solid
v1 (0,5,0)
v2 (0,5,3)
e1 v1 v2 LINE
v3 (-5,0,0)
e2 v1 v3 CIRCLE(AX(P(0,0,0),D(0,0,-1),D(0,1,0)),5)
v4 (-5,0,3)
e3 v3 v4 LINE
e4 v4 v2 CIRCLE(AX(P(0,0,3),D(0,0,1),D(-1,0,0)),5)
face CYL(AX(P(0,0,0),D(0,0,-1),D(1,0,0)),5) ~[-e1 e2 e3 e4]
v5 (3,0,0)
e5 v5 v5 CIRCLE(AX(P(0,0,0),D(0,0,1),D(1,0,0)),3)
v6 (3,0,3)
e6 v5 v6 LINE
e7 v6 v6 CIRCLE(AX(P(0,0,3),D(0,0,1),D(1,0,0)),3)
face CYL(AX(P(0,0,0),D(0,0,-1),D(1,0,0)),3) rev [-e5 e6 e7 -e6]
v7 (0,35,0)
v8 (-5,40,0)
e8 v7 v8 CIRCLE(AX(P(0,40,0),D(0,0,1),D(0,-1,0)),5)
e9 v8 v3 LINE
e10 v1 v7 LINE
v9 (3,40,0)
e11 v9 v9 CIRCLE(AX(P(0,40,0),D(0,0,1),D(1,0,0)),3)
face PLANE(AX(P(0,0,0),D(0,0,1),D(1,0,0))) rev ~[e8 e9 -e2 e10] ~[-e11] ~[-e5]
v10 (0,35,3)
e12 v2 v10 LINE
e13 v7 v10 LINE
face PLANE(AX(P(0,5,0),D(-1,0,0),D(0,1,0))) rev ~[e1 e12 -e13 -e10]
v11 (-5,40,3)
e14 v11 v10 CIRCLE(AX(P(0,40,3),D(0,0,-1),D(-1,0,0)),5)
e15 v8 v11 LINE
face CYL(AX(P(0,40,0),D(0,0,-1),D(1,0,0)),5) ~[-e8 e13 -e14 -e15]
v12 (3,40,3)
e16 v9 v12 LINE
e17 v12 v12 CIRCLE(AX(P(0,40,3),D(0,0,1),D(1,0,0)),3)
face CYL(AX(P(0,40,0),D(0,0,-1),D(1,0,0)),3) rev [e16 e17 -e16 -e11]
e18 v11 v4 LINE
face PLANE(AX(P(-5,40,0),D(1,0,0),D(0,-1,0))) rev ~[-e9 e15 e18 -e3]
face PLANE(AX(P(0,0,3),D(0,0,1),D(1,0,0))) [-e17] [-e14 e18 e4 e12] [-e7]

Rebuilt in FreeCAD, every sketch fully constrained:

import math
import FreeCAD as App
import Part
import Sketcher

doc = App.newDocument("Part")
body = doc.addObject("PartDesign::Body", "Body")

sketch1 = body.newObject("Sketcher::SketchObject", "Sketch")
sketch1.AttachmentSupport = (doc.getObject("XY_Plane"), [""])
sketch1.MapMode = "FlatFace"
sketch1.addGeometry(Part.ArcOfCircle(Part.Circle(App.Vector(0, 40, 0), App.Vector(0, 0, 1), 5), math.radians(-90), math.radians(180)), False)
sketch1.addGeometry(Part.LineSegment(App.Vector(-5, 40, 0), App.Vector(-5, 0, 0)), False)
sketch1.addGeometry(Part.ArcOfCircle(Part.Circle(App.Vector(0, 0, 0), App.Vector(0, 0, 1), 5), math.radians(180), math.radians(450)), False)
sketch1.addGeometry(Part.LineSegment(App.Vector(0, 5, 0), App.Vector(0, 35, 0)), False)
sketch1.addGeometry(Part.Circle(App.Vector(0, 40, 0), App.Vector(0, 0, 1), 3), False)
sketch1.addGeometry(Part.Circle(App.Vector(0, 0, 0), App.Vector(0, 0, 1), 3), False)
sketch1.addConstraint(Sketcher.Constraint("Tangent", 0, 2, 1, 1))
sketch1.addConstraint(Sketcher.Constraint("Tangent", 1, 2, 2, 1))
sketch1.addConstraint(Sketcher.Constraint("Coincident", 2, 2, 3, 1))
sketch1.addConstraint(Sketcher.Constraint("Coincident", 3, 2, 0, 1))
sketch1.addConstraint(Sketcher.Constraint("Vertical", 1))
sketch1.addConstraint(Sketcher.Constraint("Vertical", 3))
sketch1.addConstraint(Sketcher.Constraint("Coincident", 2, 3, -1, 1))
sketch1.addConstraint(Sketcher.Constraint("Coincident", 5, 3, -1, 1))
sketch1.addConstraint(Sketcher.Constraint("Coincident", 4, 3, 0, 3))
sketch1.addConstraint(Sketcher.Constraint("Equal", 0, 2))
sketch1.addConstraint(Sketcher.Constraint("Equal", 4, 5))
sketch1.addConstraint(Sketcher.Constraint("PointOnObject", 2, 2, -2))
sketch1.addConstraint(Sketcher.Constraint("Diameter", 4, 6.0))
sketch1.addConstraint(Sketcher.Constraint("Radius", 0, 5.0))
sketch1.addConstraint(Sketcher.Constraint("DistanceY", 1, 2, 1, 1, 40.0))
pad1 = body.newObject("PartDesign::Pad", "Pad")
pad1.Profile = sketch1
pad1.Length = 3

doc.recompute()
